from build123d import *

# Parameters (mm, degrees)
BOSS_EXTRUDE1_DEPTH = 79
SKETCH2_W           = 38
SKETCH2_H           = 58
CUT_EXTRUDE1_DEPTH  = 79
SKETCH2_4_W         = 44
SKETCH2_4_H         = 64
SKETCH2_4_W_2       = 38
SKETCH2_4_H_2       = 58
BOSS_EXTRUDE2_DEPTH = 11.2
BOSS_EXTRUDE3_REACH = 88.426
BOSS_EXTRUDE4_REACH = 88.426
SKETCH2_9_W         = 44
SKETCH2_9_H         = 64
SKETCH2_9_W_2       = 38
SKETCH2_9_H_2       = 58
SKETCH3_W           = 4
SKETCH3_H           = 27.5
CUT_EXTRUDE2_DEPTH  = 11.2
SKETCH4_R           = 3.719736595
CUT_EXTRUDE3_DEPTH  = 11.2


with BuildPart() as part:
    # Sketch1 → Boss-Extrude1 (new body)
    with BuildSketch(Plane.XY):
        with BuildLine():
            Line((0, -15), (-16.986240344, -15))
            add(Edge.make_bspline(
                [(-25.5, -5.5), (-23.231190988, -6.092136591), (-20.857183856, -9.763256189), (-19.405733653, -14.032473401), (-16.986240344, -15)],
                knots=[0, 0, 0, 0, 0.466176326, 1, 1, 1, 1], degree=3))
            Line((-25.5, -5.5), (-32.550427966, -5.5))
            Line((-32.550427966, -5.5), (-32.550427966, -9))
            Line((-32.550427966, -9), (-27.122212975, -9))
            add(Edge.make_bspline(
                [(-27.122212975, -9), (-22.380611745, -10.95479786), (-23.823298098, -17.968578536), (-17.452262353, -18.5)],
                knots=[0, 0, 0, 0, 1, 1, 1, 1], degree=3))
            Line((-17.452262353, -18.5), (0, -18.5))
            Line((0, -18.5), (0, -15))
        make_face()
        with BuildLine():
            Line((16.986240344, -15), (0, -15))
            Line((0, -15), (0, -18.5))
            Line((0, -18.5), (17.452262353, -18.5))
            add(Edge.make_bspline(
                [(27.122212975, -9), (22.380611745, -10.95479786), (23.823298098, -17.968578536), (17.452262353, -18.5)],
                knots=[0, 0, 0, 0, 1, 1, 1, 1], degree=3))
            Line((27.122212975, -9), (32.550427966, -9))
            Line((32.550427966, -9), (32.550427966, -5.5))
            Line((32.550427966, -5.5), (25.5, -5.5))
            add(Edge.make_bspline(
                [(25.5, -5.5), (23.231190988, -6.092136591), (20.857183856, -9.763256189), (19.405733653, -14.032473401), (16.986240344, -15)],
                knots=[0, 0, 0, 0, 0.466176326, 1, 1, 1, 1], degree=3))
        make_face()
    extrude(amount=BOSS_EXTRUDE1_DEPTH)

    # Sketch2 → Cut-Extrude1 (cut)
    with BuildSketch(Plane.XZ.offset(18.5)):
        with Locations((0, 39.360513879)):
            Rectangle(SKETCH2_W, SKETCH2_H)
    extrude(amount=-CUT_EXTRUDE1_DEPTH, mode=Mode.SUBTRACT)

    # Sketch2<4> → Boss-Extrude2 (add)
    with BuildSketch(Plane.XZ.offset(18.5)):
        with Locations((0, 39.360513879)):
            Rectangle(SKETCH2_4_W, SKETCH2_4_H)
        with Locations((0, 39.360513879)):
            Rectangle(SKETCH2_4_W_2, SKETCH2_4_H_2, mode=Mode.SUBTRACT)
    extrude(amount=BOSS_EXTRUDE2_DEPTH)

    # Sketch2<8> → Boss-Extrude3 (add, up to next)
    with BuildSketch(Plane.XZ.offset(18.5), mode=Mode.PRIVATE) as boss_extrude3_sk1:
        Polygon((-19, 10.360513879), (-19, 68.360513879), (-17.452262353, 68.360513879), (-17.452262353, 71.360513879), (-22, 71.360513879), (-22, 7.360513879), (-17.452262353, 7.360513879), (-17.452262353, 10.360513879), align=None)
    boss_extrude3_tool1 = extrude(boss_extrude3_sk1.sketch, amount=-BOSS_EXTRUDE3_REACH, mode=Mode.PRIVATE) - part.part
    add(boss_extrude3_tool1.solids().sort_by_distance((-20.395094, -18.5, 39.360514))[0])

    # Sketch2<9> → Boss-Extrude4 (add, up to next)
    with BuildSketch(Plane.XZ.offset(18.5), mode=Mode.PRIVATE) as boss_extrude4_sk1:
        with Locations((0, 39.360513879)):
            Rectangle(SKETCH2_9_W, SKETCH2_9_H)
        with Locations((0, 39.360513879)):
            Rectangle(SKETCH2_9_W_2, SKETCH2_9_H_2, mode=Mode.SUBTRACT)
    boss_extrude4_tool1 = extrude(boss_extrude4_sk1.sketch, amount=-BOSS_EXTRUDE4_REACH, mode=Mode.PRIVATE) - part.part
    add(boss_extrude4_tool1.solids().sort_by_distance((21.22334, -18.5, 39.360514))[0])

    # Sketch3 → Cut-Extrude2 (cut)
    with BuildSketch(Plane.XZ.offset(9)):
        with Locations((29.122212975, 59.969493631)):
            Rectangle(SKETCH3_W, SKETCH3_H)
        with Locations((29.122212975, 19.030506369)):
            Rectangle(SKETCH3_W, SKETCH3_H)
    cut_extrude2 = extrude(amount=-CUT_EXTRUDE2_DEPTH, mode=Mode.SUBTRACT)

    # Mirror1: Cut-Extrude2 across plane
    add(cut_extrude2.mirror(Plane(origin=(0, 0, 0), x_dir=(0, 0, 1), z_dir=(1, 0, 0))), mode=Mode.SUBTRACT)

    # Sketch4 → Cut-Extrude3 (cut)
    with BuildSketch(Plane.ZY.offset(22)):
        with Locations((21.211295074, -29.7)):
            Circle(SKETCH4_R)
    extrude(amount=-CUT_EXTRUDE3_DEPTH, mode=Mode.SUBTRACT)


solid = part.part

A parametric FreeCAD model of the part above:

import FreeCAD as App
import Part
import Sketcher
from FreeCAD import Vector


def add_polygon(sketch, points):
    """Adds a closed chain of lines whose ends are joined by coincident constraints."""
    first, n = sketch.GeometryCount, len(points)
    for a, b in zip(points, points[1:] + points[:1]):
        sketch.addGeometry(Part.LineSegment(App.Vector(*a, 0), App.Vector(*b, 0)), False)
    for i in range(n):
        sketch.addConstraint(Sketcher.Constraint("Coincident", first + i, 2, first + (i + 1) % n, 1))

doc = App.newDocument("Part")
body = doc.addObject("PartDesign::Body", "Body")

# Sketch on XY plane
sketch1 = body.newObject("Sketcher::SketchObject", "Sketch")
sketch1.AttachmentSupport = (doc.getObject("XY_Plane"), [""])
sketch1.MapMode = "FlatFace"
sketch1.addGeometry(Part.BSplineCurve([Vector(-25.5, -5.5, 0), Vector(-23.231191, -6.092137, 0), Vector(-20.857184, -9.763256, 0), Vector(-19.405734, -14.032473, 0), Vector(-16.98624, -15, 0)], [4, 1, 4], [0, 0.466176326, 1], False, 3, [1, 1, 1, 1, 1], False), False)
sketch1.addGeometry(Part.LineSegment(Vector(-25.5, -5.5, 0), Vector(-32.550428, -5.5, 0)), False)
sketch1.addGeometry(Part.LineSegment(Vector(-32.550428, -5.5, 0), Vector(-32.550428, -9, 0)), False)
sketch1.addGeometry(Part.LineSegment(Vector(-32.550428, -9, 0), Vector(-27.122213, -9, 0)), False)
sketch1.addGeometry(Part.BSplineCurve([Vector(-27.122213, -9, 0), Vector(-22.380612, -10.954798, 0), Vector(-23.823298, -17.968579, 0), Vector(-17.452262, -18.5, 0)], [4, 4], [0, 1], False, 3, [1, 1, 1, 1], False), False)
sketch1.addGeometry(Part.LineSegment(Vector(-17.452262, -18.5, 0), Vector(17.452262, -18.5, 0)), False)
sketch1.addGeometry(Part.BSplineCurve([Vector(27.122213, -9, 0), Vector(22.380612, -10.954798, 0), Vector(23.823298, -17.968579, 0), Vector(17.452262, -18.5, 0)], [4, 4], [0, 1], False, 3, [1, 1, 1, 1], False), False)
sketch1.addGeometry(Part.LineSegment(Vector(27.122213, -9, 0), Vector(32.550428, -9, 0)), False)
sketch1.addGeometry(Part.LineSegment(Vector(32.550428, -9, 0), Vector(32.550428, -5.5, 0)), False)
sketch1.addGeometry(Part.LineSegment(Vector(32.550428, -5.5, 0), Vector(25.5, -5.5, 0)), False)
sketch1.addGeometry(Part.BSplineCurve([Vector(25.5, -5.5, 0), Vector(23.231191, -6.092137, 0), Vector(20.857184, -9.763256, 0), Vector(19.405734, -14.032473, 0), Vector(16.98624, -15, 0)], [4, 1, 4], [0, 0.466176326, 1], False, 3, [1, 1, 1, 1, 1], False), False)
sketch1.addGeometry(Part.LineSegment(Vector(16.98624, -15, 0), Vector(-16.98624, -15, 0)), False)
sketch1.addConstraint(Sketcher.Constraint("Block", 0))
sketch1.addConstraint(Sketcher.Constraint("Block", 4))
sketch1.addConstraint(Sketcher.Constraint("Block", 6))
sketch1.addConstraint(Sketcher.Constraint("Block", 10))
sketch1.addConstraint(Sketcher.Constraint("Coincident", 0, 1, 1, 1))
sketch1.addConstraint(Sketcher.Constraint("Coincident", 1, 2, 2, 1))
sketch1.addConstraint(Sketcher.Constraint("Coincident", 2, 2, 3, 1))
sketch1.addConstraint(Sketcher.Constraint("Coincident", 3, 2, 4, 1))
sketch1.addConstraint(Sketcher.Constraint("Coincident", 4, 2, 5, 1))
sketch1.addConstraint(Sketcher.Constraint("Coincident", 5, 2, 6, 2))
sketch1.addConstraint(Sketcher.Constraint("Coincident", 6, 1, 7, 1))
sketch1.addConstraint(Sketcher.Constraint("Coincident", 7, 2, 8, 1))
sketch1.addConstraint(Sketcher.Constraint("Coincident", 8, 2, 9, 1))
sketch1.addConstraint(Sketcher.Constraint("Coincident", 9, 2, 10, 1))
sketch1.addConstraint(Sketcher.Constraint("Coincident", 10, 2, 11, 1))
sketch1.addConstraint(Sketcher.Constraint("Coincident", 11, 2, 0, 2))
sketch1.addConstraint(Sketcher.Constraint("Horizontal", 1))
sketch1.addConstraint(Sketcher.Constraint("Vertical", 2))
sketch1.addConstraint(Sketcher.Constraint("Horizontal", 3))
sketch1.addConstraint(Sketcher.Constraint("Horizontal", 7))
sketch1.addConstraint(Sketcher.Constraint("Vertical", 8))
sketch1.addConstraint(Sketcher.Constraint("Horizontal", 9))
sketch1.addConstraint(Sketcher.Constraint("Equal", 3, 7))
sketch1.addConstraint(Sketcher.Constraint("DistanceX", 1, 2, 1, 1, 7.050428))
pad1 = body.newObject("PartDesign::Pad", "Pad")
pad1.Profile = sketch1
pad1.Length = 79

# Sketch on XZ plane
sketch2 = body.newObject("Sketcher::SketchObject", "Sketch001")
sketch2.AttachmentSupport = (doc.getObject("XZ_Plane"), [""])
sketch2.MapMode = "FlatFace"
sketch2.AttachmentOffset = App.Placement(Vector(0, 0, 18.5), App.Rotation())
add_polygon(sketch2, [(-19, 68), (-19, 10), (19, 10), (19, 68)])  # lines 0-3
sketch2.addConstraint(Sketcher.Constraint("Vertical", 0))
sketch2.addConstraint(Sketcher.Constraint("Horizontal", 1))
sketch2.addConstraint(Sketcher.Constraint("Vertical", 2))
sketch2.addConstraint(Sketcher.Constraint("Horizontal", 3))
sketch2.addConstraint(Sketcher.Constraint("DistanceX", 1, 1, 1, 2, 38.0))
sketch2.addConstraint(Sketcher.Constraint("DistanceY", 0, 2, 0, 1, 58.0))
sketch2.addConstraint(Sketcher.Constraint("DistanceX", 0, 2, -1, 1, 19.0))
sketch2.addConstraint(Sketcher.Constraint("DistanceY", -1, 1, 0, 2, 10.360514))
pocket1 = body.newObject("PartDesign::Pocket", "Pocket")
pocket1.Profile = sketch2
pocket1.Length = 79

# Sketch on XZ plane
sketch3 = body.newObject("Sketcher::SketchObject", "Sketch002")
sketch3.AttachmentSupport = (doc.getObject("XZ_Plane"), [""])
sketch3.MapMode = "FlatFace"
sketch3.AttachmentOffset = App.Placement(Vector(0, 0, 18.5), App.Rotation())
add_polygon(sketch3, [(-22, 71), (-22, 7), (22, 7), (22, 71)])  # lines 0-3
add_polygon(sketch3, [(19, 10), (-19, 10), (-19, 68), (19, 68)])  # lines 4-7
sketch3.addConstraint(Sketcher.Constraint("Vertical", 0))
sketch3.addConstraint(Sketcher.Constraint("Horizontal", 1))
sketch3.addConstraint(Sketcher.Constraint("Vertical", 2))
sketch3.addConstraint(Sketcher.Constraint("Horizontal", 3))
sketch3.addConstraint(Sketcher.Constraint("Horizontal", 4))
sketch3.addConstraint(Sketcher.Constraint("Vertical", 5))
sketch3.addConstraint(Sketcher.Constraint("Horizontal", 6))
sketch3.addConstraint(Sketcher.Constraint("Vertical", 7))
sketch3.addConstraint(Sketcher.Constraint("DistanceX", 1, 1, 1, 2, 44.0))
sketch3.addConstraint(Sketcher.Constraint("DistanceX", 4, 2, 4, 1, 38.0))
sketch3.addConstraint(Sketcher.Constraint("DistanceY", 0, 2, 0, 1, 64.0))
sketch3.addConstraint(Sketcher.Constraint("DistanceY", 5, 1, 5, 2, 58.0))
sketch3.addConstraint(Sketcher.Constraint("DistanceX", 0, 2, -1, 1, 22.0))
sketch3.addConstraint(Sketcher.Constraint("DistanceX", 4, 2, -1, 1, 19.0))
sketch3.addConstraint(Sketcher.Constraint("DistanceY", 0, 2, 4, 2, 3.0))
sketch3.addConstraint(Sketcher.Constraint("DistanceY", -1, 1, 0, 2, 7.360514))
pad2 = body.newObject("PartDesign::Pad", "Pad001")
pad2.Profile = sketch3
pad2.Length = 11.2

# Sketch on XZ plane
sketch4 = body.newObject("Sketcher::SketchObject", "Sketch003")
sketch4.AttachmentSupport = (doc.getObject("XZ_Plane"), [""])
sketch4.MapMode = "FlatFace"
sketch4.AttachmentOffset = App.Placement(Vector(0, 0, 18.5), App.Rotation())
add_polygon(sketch4, [(-19, 10.4), (-19, 68.4), (-17.5, 68.4), (-17.5, 71.4), (-22, 71.4), (-22, 7.4), (-17.5, 7.4), (-17.5, 10.4)])  # lines 0-7
sketch4.addConstraint(Sketcher.Constraint("Vertical", 0))
sketch4.addConstraint(Sketcher.Constraint("Horizontal", 1))
sketch4.addConstraint(Sketcher.Constraint("Vertical", 2))
sketch4.addConstraint(Sketcher.Constraint("Horizontal", 3))
sketch4.addConstraint(Sketcher.Constraint("Vertical", 4))
sketch4.addConstraint(Sketcher.Constraint("Horizontal", 5))
sketch4.addConstraint(Sketcher.Constraint("Vertical", 6))
sketch4.addConstraint(Sketcher.Constraint("Horizontal", 7))
sketch4.addConstraint(Sketcher.Constraint("Vertical", 2, 2, 5, 2))
sketch4.addConstraint(Sketcher.Constraint("Equal", 2, 6))
sketch4.addConstraint(Sketcher.Constraint("DistanceY", 0, 1, 0, 2, 58.0))
sketch4.addConstraint(Sketcher.Constraint("DistanceY", 2, 1, 2, 2, 3.0))
sketch4.addConstraint(Sketcher.Constraint("DistanceX", 0, 2, -1, 1, 19.0))
sketch4.addConstraint(Sketcher.Constraint("DistanceX", 3, 2, -1, 1, 22.0))
sketch4.addConstraint(Sketcher.Constraint("DistanceX", 1, 1, 1, 2, 1.547738))
sketch4.addConstraint(Sketcher.Constraint("DistanceY", -1, 1, 0, 2, 68.360514))
pad3 = body.newObject("PartDesign::Pad", "Pad002")
pad3.Profile = sketch4
pad3.Length = 2.631773
pad3.Reversed = True

# Sketch on XZ plane
sketch5 = body.newObject("Sketcher::SketchObject", "Sketch004")
sketch5.AttachmentSupport = (doc.getObject("XZ_Plane"), [""])
sketch5.MapMode = "FlatFace"
sketch5.AttachmentOffset = App.Placement(Vector(0, 0, 18.5), App.Rotation())
add_polygon(sketch5, [(-22, 71), (-22, 7), (22, 7), (22, 71)])  # lines 0-3
add_polygon(sketch5, [(19, 10), (-19, 10), (-19, 68), (19, 68)])  # lines 4-7
sketch5.addConstraint(Sketcher.Constraint("Vertical", 0))
sketch5.addConstraint(Sketcher.Constraint("Horizontal", 1))
sketch5.addConstraint(Sketcher.Constraint("Vertical", 2))
sketch5.addConstraint(Sketcher.Constraint("Horizontal", 3))
sketch5.addConstraint(Sketcher.Constraint("Horizontal", 4))
sketch5.addConstraint(Sketcher.Constraint("Vertical", 5))
sketch5.addConstraint(Sketcher.Constraint("Horizontal", 6))
sketch5.addConstraint(Sketcher.Constraint("Vertical", 7))
sketch5.addConstraint(Sketcher.Constraint("DistanceX", 1, 1, 1, 2, 44.0))
sketch5.addConstraint(Sketcher.Constraint("DistanceX", 4, 2, 4, 1, 38.0))
sketch5.addConstraint(Sketcher.Constraint("DistanceY", 0, 2, 0, 1, 64.0))
sketch5.addConstraint(Sketcher.Constraint("DistanceY", 5, 1, 5, 2, 58.0))
sketch5.addConstraint(Sketcher.Constraint("DistanceX", 0, 2, -1, 1, 22.0))
sketch5.addConstraint(Sketcher.Constraint("DistanceX", 4, 2, -1, 1, 19.0))
sketch5.addConstraint(Sketcher.Constraint("DistanceY", 0, 2, 4, 2, 3.0))
sketch5.addConstraint(Sketcher.Constraint("DistanceY", -1, 1, 0, 2, 7.360514))
pad4 = body.newObject("PartDesign::Pad", "Pad003")
pad4.Profile = sketch5
pad4.Length = 2.631773
pad4.Reversed = True

# Sketch on XZ plane
sketch6 = body.newObject("Sketcher::SketchObject", "Sketch005")
sketch6.AttachmentSupport = (doc.getObject("XZ_Plane"), [""])
sketch6.MapMode = "FlatFace"
sketch6.AttachmentOffset = App.Placement(Vector(0, 0, 9), App.Rotation())
add_polygon(sketch6, [(27.1, 73.7), (27.1, 46.2), (31.1, 46.2), (31.1, 73.7)])  # lines 0-3
add_polygon(sketch6, [(27.1, 32.8), (27.1, 5.3), (31.1, 5.3), (31.1, 32.8)])  # lines 4-7
sketch6.addConstraint(Sketcher.Constraint("Vertical", 0))
sketch6.addConstraint(Sketcher.Constraint("Horizontal", 1))
sketch6.addConstraint(Sketcher.Constraint("Vertical", 2))
sketch6.addConstraint(Sketcher.Constraint("Horizontal", 3))
sketch6.addConstraint(Sketcher.Constraint("Vertical", 4))
sketch6.addConstraint(Sketcher.Constraint("Horizontal", 5))
sketch6.addConstraint(Sketcher.Constraint("Vertical", 6))
sketch6.addConstraint(Sketcher.Constraint("Horizontal", 7))
sketch6.addConstraint(Sketcher.Constraint("Vertical", 3, 2, 4, 2))
sketch6.addConstraint(Sketcher.Constraint("Vertical", 2, 2, 5, 2))
sketch6.addConstraint(Sketcher.Constraint("Equal", 2, 4))
sketch6.addConstraint(Sketcher.Constraint("DistanceX", 1, 1, 1, 2, 4.0))
sketch6.addConstraint(Sketcher.Constraint("DistanceY", 0, 2, 0, 1, 27.5))
sketch6.addConstraint(Sketcher.Constraint("DistanceX", -1, 1, 0, 2, 27.122213))
sketch6.addConstraint(Sketcher.Constraint("DistanceY", -1, 1, 0, 2, 46.219494))
sketch6.addConstraint(Sketcher.Constraint("DistanceY", -1, 1, 4, 2, 5.280506))
pocket2 = body.newObject("PartDesign::Pocket", "Pocket001")
pocket2.Profile = sketch6
pocket2.Length = 11.2
doc.recompute()

mirrored = body.newObject("PartDesign::Mirrored", "Mirrored")
mirrored.Originals = [pocket2]
mirrored.MirrorPlane = (doc.getObject("YZ_Plane"), [""])
body.Tip = mirrored

# Sketch on YZ plane
sketch7 = body.newObject("Sketcher::SketchObject", "Sketch006")
sketch7.AttachmentSupport = (doc.getObject("YZ_Plane"), [""])
sketch7.MapMode = "FlatFace"
sketch7.AttachmentOffset = App.Placement(Vector(0, 0, -22), App.Rotation())
sketch7.addGeometry(Part.Circle(Vector(-29.7, 21.2, 0), Vector(0, 0, 1), 3.7), False)
sketch7.addConstraint(Sketcher.Constraint("DistanceX", 0, 3, -1, 1, 29.7))
sketch7.addConstraint(Sketcher.Constraint("Diameter", 0, 7.439473))
sketch7.addConstraint(Sketcher.Constraint("DistanceY", -1, 1, 0, 3, 21.211295))
pocket3 = body.newObject("PartDesign::Pocket", "Pocket002")
pocket3.Profile = sketch7
pocket3.Length = 11.2
pocket3.Reversed = True

doc.recompute()
